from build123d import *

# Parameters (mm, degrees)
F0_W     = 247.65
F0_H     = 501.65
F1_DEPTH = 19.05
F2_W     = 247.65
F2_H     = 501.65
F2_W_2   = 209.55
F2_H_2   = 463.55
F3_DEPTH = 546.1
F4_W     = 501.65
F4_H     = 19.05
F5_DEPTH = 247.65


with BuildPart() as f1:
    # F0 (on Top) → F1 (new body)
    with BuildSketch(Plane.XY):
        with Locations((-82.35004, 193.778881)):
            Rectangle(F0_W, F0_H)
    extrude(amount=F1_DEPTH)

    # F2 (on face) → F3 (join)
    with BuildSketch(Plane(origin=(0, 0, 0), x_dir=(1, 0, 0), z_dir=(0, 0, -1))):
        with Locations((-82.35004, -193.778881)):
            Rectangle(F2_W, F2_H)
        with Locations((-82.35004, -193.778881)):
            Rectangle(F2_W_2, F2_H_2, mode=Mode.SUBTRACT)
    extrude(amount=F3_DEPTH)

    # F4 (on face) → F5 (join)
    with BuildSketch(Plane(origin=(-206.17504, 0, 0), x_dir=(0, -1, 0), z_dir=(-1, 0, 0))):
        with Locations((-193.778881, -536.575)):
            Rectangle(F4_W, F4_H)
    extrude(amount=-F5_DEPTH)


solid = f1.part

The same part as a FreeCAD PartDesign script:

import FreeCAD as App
import Part
import Sketcher

V = App.Vector
Q = App.Units.Quantity

doc = App.newDocument("Part")
body = doc.addObject("PartDesign::Body", "Body")

sketch1 = body.newObject("Sketcher::SketchObject", "Sketch")
sketch1.AttachmentSupport = (doc.getObject("XY_Plane"), [""])
sketch1.MapMode = "FlatFace"
sketch1.addGeometry(Part.LineSegment(V(-206, 445, 0), V(-206, -57, 0)), False)
sketch1.addGeometry(Part.LineSegment(V(-206, -57, 0), V(41, -57, 0)), False)
sketch1.addGeometry(Part.LineSegment(V(41, -57, 0), V(41, 445, 0)), False)
sketch1.addGeometry(Part.LineSegment(V(41, 445, 0), V(-206, 445, 0)), False)
sketch1.addConstraint(Sketcher.Constraint("Coincident", 0, 2, 1, 1))
sketch1.addConstraint(Sketcher.Constraint("Coincident", 1, 2, 2, 1))
sketch1.addConstraint(Sketcher.Constraint("Coincident", 2, 2, 3, 1))
sketch1.addConstraint(Sketcher.Constraint("Coincident", 3, 2, 0, 1))
sketch1.addConstraint(Sketcher.Constraint("Vertical", 0))
sketch1.addConstraint(Sketcher.Constraint("Horizontal", 1))
sketch1.addConstraint(Sketcher.Constraint("Vertical", 2))
sketch1.addConstraint(Sketcher.Constraint("Horizontal", 3))
sketch1.addConstraint(Sketcher.Constraint("DistanceX", 1, 1, 1, 2, Q("9.75 in")))
sketch1.addConstraint(Sketcher.Constraint("DistanceY", 0, 2, 0, 1, Q("19.75 in")))
sketch1.addConstraint(Sketcher.Constraint("DistanceX", 0, 2, -1, 1, Q("206.17504 mm")))
sketch1.addConstraint(Sketcher.Constraint("DistanceY", 0, 2, -1, 1, Q("57.046119 mm")))
pad1 = body.newObject("PartDesign::Pad", "Pad")
pad1.Profile = sketch1
pad1.Length = Q("0.75 in")

sketch2 = body.newObject("Sketcher::SketchObject", "Sketch001")
sketch2.AttachmentSupport = (doc.getObject("XY_Plane"), [""])
sketch2.MapMode = "FlatFace"
sketch2.addGeometry(Part.LineSegment(V(-206, -57, 0), V(-206, 445, 0)), False)
sketch2.addGeometry(Part.LineSegment(V(-206, 445, 0), V(41, 445, 0)), False)
sketch2.addGeometry(Part.LineSegment(V(41, 445, 0), V(41, -57, 0)), False)
sketch2.addGeometry(Part.LineSegment(V(41, -57, 0), V(-206, -57, 0)), False)
sketch2.addGeometry(Part.LineSegment(V(22, 426, 0), V(-187, 426, 0)), False)
sketch2.addGeometry(Part.LineSegment(V(-187, 426, 0), V(-187, -38, 0)), False)
sketch2.addGeometry(Part.LineSegment(V(-187, -38, 0), V(22, -38, 0)), False)
sketch2.addGeometry(Part.LineSegment(V(22, -38, 0), V(22, 426, 0)), False)
sketch2.addConstraint(Sketcher.Constraint("Coincident", 0, 2, 1, 1))
sketch2.addConstraint(Sketcher.Constraint("Coincident", 1, 2, 2, 1))
sketch2.addConstraint(Sketcher.Constraint("Coincident", 2, 2, 3, 1))
sketch2.addConstraint(Sketcher.Constraint("Coincident", 3, 2, 0, 1))
sketch2.addConstraint(Sketcher.Constraint("Coincident", 4, 2, 5, 1))
sketch2.addConstraint(Sketcher.Constraint("Coincident", 5, 2, 6, 1))
sketch2.addConstraint(Sketcher.Constraint("Coincident", 6, 2, 7, 1))
sketch2.addConstraint(Sketcher.Constraint("Coincident", 7, 2, 4, 1))
sketch2.addConstraint(Sketcher.Constraint("Vertical", 0))
sketch2.addConstraint(Sketcher.Constraint("Horizontal", 1))
sketch2.addConstraint(Sketcher.Constraint("Vertical", 2))
sketch2.addConstraint(Sketcher.Constraint("Horizontal", 3))
sketch2.addConstraint(Sketcher.Constraint("Horizontal", 4))
sketch2.addConstraint(Sketcher.Constraint("Vertical", 5))
sketch2.addConstraint(Sketcher.Constraint("Horizontal", 6))
sketch2.addConstraint(Sketcher.Constraint("Vertical", 7))
sketch2.addConstraint(Sketcher.Constraint("DistanceX", 4, 2, 1, 2, Q("9 in")))
sketch2.addConstraint(Sketcher.Constraint("DistanceY", 3, 2, 4, 2, Q("19 in")))
sketch2.addConstraint(Sketcher.Constraint("DistanceY", 5, 2, 0, 2, Q("19 in")))
sketch2.addConstraint(Sketcher.Constraint("DistanceX", 3, 2, 6, 2, Q("9 in")))
sketch2.addConstraint(Sketcher.Constraint("DistanceX", 1, 1, 1, 2, Q("9.75 in")))
sketch2.addConstraint(Sketcher.Constraint("DistanceY", 0, 1, 0, 2, Q("19.75 in")))
sketch2.addConstraint(Sketcher.Constraint("DistanceX", 0, 2, -1, 1, Q("206.17504 mm")))
sketch2.addConstraint(Sketcher.Constraint("DistanceY", -1, 1, 0, 2, Q("444.603881 mm")))
pad2 = body.newObject("PartDesign::Pad", "Pad001")
pad2.Profile = sketch2
pad2.Length = Q("21.5 in")
pad2.Reversed = True

sketch3 = body.newObject("Sketcher::SketchObject", "Sketch002")
sketch3.AttachmentSupport = (doc.getObject("YZ_Plane"), [""])
sketch3.MapMode = "FlatFace"
sketch3.AttachmentOffset = App.Placement(V(0, 0, -206.17504), App.Rotation())
sketch3.addGeometry(Part.LineSegment(V(445, -527, 0), V(445, -546, 0)), False)
sketch3.addGeometry(Part.LineSegment(V(445, -546, 0), V(-57, -546, 0)), False)
sketch3.addGeometry(Part.LineSegment(V(-57, -546, 0), V(-57, -527, 0)), False)
sketch3.addGeometry(Part.LineSegment(V(-57, -527, 0), V(445, -527, 0)), False)
sketch3.addConstraint(Sketcher.Constraint("Coincident", 0, 2, 1, 1))
sketch3.addConstraint(Sketcher.Constraint("Coincident", 1, 2, 2, 1))
sketch3.addConstraint(Sketcher.Constraint("Coincident", 2, 2, 3, 1))
sketch3.addConstraint(Sketcher.Constraint("Coincident", 3, 2, 0, 1))
sketch3.addConstraint(Sketcher.Constraint("Vertical", 0))
sketch3.addConstraint(Sketcher.Constraint("Horizontal", 1))
sketch3.addConstraint(Sketcher.Constraint("Vertical", 2))
sketch3.addConstraint(Sketcher.Constraint("Horizontal", 3))
sketch3.addConstraint(Sketcher.Constraint("DistanceX", 1, 2, 1, 1, Q("19.75 in")))
sketch3.addConstraint(Sketcher.Constraint("DistanceY", 0, 2, 0, 1, Q("0.75 in")))
sketch3.addConstraint(Sketcher.Constraint("DistanceY", 0, 2, -1, 1, Q("21.5 in")))
sketch3.addConstraint(Sketcher.Constraint("DistanceX", -1, 1, 0, 2, Q("444.603881 mm")))
pad3 = body.newObject("PartDesign::Pad", "Pad002")
pad3.Profile = sketch3
pad3.Length = Q("9.75 in")

doc.recompute()
